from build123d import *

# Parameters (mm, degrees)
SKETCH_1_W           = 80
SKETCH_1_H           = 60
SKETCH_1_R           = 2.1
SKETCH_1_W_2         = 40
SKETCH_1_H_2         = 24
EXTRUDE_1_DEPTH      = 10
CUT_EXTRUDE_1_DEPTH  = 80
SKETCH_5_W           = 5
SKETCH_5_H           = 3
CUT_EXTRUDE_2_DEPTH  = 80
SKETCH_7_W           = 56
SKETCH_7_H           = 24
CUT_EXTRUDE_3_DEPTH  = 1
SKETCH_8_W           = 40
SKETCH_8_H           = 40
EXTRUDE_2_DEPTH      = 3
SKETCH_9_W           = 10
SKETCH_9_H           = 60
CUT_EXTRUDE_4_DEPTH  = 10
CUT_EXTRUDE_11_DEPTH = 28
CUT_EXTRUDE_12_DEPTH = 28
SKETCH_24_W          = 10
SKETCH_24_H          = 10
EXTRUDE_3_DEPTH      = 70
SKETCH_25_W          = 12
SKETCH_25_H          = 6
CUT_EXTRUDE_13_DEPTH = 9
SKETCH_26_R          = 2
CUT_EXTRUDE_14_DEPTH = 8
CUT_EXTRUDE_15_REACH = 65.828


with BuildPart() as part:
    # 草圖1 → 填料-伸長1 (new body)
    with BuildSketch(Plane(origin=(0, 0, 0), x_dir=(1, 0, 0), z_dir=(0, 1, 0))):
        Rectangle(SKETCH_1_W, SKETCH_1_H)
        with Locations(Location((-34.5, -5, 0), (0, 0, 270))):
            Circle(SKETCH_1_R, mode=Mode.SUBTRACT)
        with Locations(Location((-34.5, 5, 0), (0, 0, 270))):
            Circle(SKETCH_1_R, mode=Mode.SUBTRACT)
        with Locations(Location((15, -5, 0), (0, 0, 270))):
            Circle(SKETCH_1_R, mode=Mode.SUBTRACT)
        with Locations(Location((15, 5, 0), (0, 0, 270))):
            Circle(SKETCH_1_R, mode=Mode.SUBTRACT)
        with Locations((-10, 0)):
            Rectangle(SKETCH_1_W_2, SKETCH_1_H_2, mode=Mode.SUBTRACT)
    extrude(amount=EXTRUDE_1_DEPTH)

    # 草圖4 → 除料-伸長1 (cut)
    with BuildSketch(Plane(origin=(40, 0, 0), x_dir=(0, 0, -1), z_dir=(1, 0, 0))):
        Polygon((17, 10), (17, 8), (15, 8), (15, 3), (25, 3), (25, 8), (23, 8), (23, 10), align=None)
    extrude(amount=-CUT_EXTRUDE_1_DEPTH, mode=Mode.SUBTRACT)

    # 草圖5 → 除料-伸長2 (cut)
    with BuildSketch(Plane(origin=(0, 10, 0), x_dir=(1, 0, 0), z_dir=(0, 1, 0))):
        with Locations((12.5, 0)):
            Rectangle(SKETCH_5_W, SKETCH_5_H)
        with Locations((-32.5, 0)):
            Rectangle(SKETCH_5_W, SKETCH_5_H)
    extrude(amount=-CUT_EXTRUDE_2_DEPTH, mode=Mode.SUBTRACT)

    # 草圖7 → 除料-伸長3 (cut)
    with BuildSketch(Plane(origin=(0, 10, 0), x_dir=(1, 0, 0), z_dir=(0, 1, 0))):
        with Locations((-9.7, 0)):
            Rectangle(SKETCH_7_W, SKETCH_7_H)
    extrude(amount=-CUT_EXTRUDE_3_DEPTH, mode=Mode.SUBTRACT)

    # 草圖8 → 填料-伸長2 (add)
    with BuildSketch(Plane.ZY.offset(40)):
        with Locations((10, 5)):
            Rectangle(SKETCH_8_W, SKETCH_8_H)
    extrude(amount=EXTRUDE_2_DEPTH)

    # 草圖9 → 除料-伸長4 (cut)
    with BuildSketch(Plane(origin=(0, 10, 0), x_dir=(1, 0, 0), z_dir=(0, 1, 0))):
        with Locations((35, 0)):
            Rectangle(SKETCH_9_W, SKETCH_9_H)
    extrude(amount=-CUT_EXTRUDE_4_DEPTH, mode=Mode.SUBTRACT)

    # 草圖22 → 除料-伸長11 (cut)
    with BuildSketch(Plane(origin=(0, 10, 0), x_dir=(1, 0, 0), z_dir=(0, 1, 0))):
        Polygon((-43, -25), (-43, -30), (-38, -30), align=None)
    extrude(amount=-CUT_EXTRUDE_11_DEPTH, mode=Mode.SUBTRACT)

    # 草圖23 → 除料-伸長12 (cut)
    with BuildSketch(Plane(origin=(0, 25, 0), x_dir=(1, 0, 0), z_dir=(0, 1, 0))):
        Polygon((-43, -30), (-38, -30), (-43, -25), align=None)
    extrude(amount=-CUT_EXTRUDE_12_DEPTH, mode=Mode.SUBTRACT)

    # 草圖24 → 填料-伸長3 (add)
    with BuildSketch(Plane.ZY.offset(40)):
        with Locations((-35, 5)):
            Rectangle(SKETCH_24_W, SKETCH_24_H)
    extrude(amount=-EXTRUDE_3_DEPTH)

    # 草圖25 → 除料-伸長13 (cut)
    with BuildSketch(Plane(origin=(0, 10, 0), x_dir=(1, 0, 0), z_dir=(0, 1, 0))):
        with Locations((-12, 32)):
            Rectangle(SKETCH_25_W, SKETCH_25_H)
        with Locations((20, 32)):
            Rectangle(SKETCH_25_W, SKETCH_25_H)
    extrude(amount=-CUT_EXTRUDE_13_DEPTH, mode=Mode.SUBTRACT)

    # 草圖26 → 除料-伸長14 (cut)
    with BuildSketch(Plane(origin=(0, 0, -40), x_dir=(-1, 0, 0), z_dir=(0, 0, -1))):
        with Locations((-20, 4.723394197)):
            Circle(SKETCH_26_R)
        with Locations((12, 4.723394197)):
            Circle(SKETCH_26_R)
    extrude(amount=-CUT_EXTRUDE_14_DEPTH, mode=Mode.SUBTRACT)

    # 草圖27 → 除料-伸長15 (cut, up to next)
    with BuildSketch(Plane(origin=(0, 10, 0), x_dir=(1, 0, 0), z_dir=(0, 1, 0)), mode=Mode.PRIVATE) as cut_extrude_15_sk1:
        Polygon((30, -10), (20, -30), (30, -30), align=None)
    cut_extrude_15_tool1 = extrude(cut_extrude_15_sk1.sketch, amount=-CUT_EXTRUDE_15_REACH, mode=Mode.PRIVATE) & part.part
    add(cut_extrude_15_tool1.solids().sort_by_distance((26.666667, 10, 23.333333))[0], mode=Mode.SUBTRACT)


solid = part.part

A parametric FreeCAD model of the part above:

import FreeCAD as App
import Part
import Sketcher

V = App.Vector
Q = App.Units.Quantity


def add_polygon(sketch, points):
    """Adds a closed chain of lines whose ends are joined by coincident constraints."""
    first, n = sketch.GeometryCount, len(points)
    for a, b in zip(points, points[1:] + points[:1]):
        sketch.addGeometry(Part.LineSegment(App.Vector(*a, 0), App.Vector(*b, 0)), False)
    for i in range(n):
        sketch.addConstraint(Sketcher.Constraint("Coincident", first + i, 2, first + (i + 1) % n, 1))

doc = App.newDocument("Part")
body = doc.addObject("PartDesign::Body", "Body")

# Sketch on XZ plane
sketch1 = doc.addObject("Sketcher::SketchObject", "Sketch")
body.addObject(sketch1)
sketch1.AttachmentSupport = (doc.XZ_Plane, [""])
sketch1.MapMode = "FlatFace"
add_polygon(sketch1, [(-40, -30), (-40, 30), (40, 30), (40, -30)])  # lines 0-3
sketch1.addGeometry(Part.Circle(V(-34.5, 5, 0), V(0, 0, 1), 2.1), False)  # 4
sketch1.addGeometry(Part.Circle(V(15, 5, 0), V(0, 0, 1), 2.1), False)  # 5
sketch1.addGeometry(Part.Circle(V(-34.5, -5, 0), V(0, 0, 1), 2.1), False)  # 6
add_polygon(sketch1, [(10, 12), (-30, 12), (-30, -12), (10, -12)])  # lines 7-10
sketch1.addGeometry(Part.Circle(V(15, -5, 0), V(0, 0, 1), 2.1), False)  # 11
sketch1.addConstraint(Sketcher.Constraint("Vertical", 0))
sketch1.addConstraint(Sketcher.Constraint("Horizontal", 1))
sketch1.addConstraint(Sketcher.Constraint("Vertical", 2))
sketch1.addConstraint(Sketcher.Constraint("Horizontal", 3))
sketch1.addConstraint(Sketcher.Constraint("Horizontal", 7))
sketch1.addConstraint(Sketcher.Constraint("Vertical", 8))
sketch1.addConstraint(Sketcher.Constraint("Horizontal", 9))
sketch1.addConstraint(Sketcher.Constraint("Vertical", 10))
sketch1.addConstraint(Sketcher.Constraint("Equal", 4, 5))
sketch1.addConstraint(Sketcher.Constraint("Equal", 5, 6))
sketch1.addConstraint(Sketcher.Constraint("Equal", 6, 11))
sketch1.addConstraint(Sketcher.Constraint("Symmetric", 0, 2, 2, 2, -1, 1))
sketch1.addConstraint(Sketcher.Constraint("Symmetric", 4, 3, 6, 3, -1))
sketch1.addConstraint(Sketcher.Constraint("Symmetric", 5, 3, 11, 3, -1))
sketch1.addConstraint(Sketcher.Constraint("Horizontal", 4, 3, 5, 3))
sketch1.addConstraint(Sketcher.Constraint("Diameter", 4, Q("4.2 mm")))
sketch1.addConstraint(Sketcher.Constraint("DistanceX", 1, 1, 1, 2, Q("80 mm")))
sketch1.addConstraint(Sketcher.Constraint("DistanceX", 7, 2, 7, 1, Q("40 mm")))
sketch1.addConstraint(Sketcher.Constraint("DistanceY", 0, 1, 0, 2, Q("60 mm")))
sketch1.addConstraint(Sketcher.Constraint("DistanceY", 8, 2, 8, 1, Q("24 mm")))
sketch1.addConstraint(Sketcher.Constraint("DistanceY", -1, 1, 4, 3, Q("5 mm")))
sketch1.addConstraint(Sketcher.Constraint("DistanceX", -1, 1, 5, 3, Q("15 mm")))
sketch1.addConstraint(Sketcher.Constraint("DistanceX", 7, 2, -1, 1, Q("30 mm")))
sketch1.addConstraint(Sketcher.Constraint("DistanceY", -1, 1, 7, 2, Q("12 mm")))
sketch1.addConstraint(Sketcher.Constraint("DistanceX", 4, 3, -1, 1, Q("34.5 mm")))
pad1 = doc.addObject("PartDesign::Pad", "Pad")
body.addObject(pad1)
pad1.Profile = sketch1
pad1.Length = 10
pad1.Reversed = True

# Sketch on YZ plane
sketch2 = doc.addObject("Sketcher::SketchObject", "Sketch001")
body.addObject(sketch2)
sketch2.AttachmentSupport = (doc.YZ_Plane, [""])
sketch2.MapMode = "FlatFace"
sketch2.AttachmentOffset = App.Placement(V(0, 0, 40), App.Rotation())
add_polygon(sketch2, [(10, -17), (8, -17), (8, -15), (3, -15), (3, -25), (8, -25), (8, -23), (10, -23)])  # lines 0-7
sketch2.addConstraint(Sketcher.Constraint("Horizontal", 0))
sketch2.addConstraint(Sketcher.Constraint("Vertical", 1))
sketch2.addConstraint(Sketcher.Constraint("Horizontal", 2))
sketch2.addConstraint(Sketcher.Constraint("Vertical", 3))
sketch2.addConstraint(Sketcher.Constraint("Horizontal", 4))
sketch2.addConstraint(Sketcher.Constraint("Vertical", 5))
sketch2.addConstraint(Sketcher.Constraint("Horizontal", 6))
sketch2.addConstraint(Sketcher.Constraint("Vertical", 7))
sketch2.addConstraint(Sketcher.Constraint("Vertical", 1, 2, 4, 2))
sketch2.addConstraint(Sketcher.Constraint("Equal", 6, 1))
sketch2.addConstraint(Sketcher.Constraint("Equal", 1, 5))
sketch2.addConstraint(Sketcher.Constraint("DistanceX", 0, 2, 0, 1, Q("2 mm")))
sketch2.addConstraint(Sketcher.Constraint("DistanceX", 2, 2, 2, 1, Q("5 mm")))
sketch2.addConstraint(Sketcher.Constraint("DistanceY", 3, 2, 3, 1, Q("10 mm")))
sketch2.addConstraint(Sketcher.Constraint("DistanceX", -1, 1, 0, 2, Q("8 mm")))
sketch2.addConstraint(Sketcher.Constraint("DistanceY", 0, 2, -1, 1, Q("17 mm")))
pocket1 = doc.addObject("PartDesign::Pocket", "Pocket")
body.addObject(pocket1)
pocket1.Profile = sketch2
pocket1.Length = 80

# Sketch on XZ plane
sketch3 = doc.addObject("Sketcher::SketchObject", "Sketch002")
body.addObject(sketch3)
sketch3.AttachmentSupport = (doc.XZ_Plane, [""])
sketch3.MapMode = "FlatFace"
sketch3.AttachmentOffset = App.Placement(V(0, 0, -10), App.Rotation())
add_polygon(sketch3, [(10, -1.5), (10, 1.5), (15, 1.5), (15, -1.5)])  # lines 0-3
add_polygon(sketch3, [(-35, -1.5), (-35, 1.5), (-30, 1.5), (-30, -1.5)])  # lines 4-7
sketch3.addConstraint(Sketcher.Constraint("Vertical", 0))
sketch3.addConstraint(Sketcher.Constraint("Horizontal", 1))
sketch3.addConstraint(Sketcher.Constraint("Vertical", 2))
sketch3.addConstraint(Sketcher.Constraint("Horizontal", 3))
sketch3.addConstraint(Sketcher.Constraint("Vertical", 4))
sketch3.addConstraint(Sketcher.Constraint("Horizontal", 5))
sketch3.addConstraint(Sketcher.Constraint("Vertical", 6))
sketch3.addConstraint(Sketcher.Constraint("Horizontal", 7))
sketch3.addConstraint(Sketcher.Constraint("Horizontal", 1, 2, 4, 2))
sketch3.addConstraint(Sketcher.Constraint("Horizontal", 3, 2, 6, 2))
sketch3.addConstraint(Sketcher.Constraint("Equal", 3, 5))
sketch3.addConstraint(Sketcher.Constraint("DistanceX", 1, 1, 1, 2, Q("5 mm")))
sketch3.addConstraint(Sketcher.Constraint("DistanceY", 0, 1, 0, 2, Q("3 mm")))
sketch3.addConstraint(Sketcher.Constraint("DistanceX", -1, 1, 0, 2, Q("10 mm")))
sketch3.addConstraint(Sketcher.Constraint("DistanceX", 4, 2, -1, 1, Q("35 mm")))
sketch3.addConstraint(Sketcher.Constraint("DistanceY", -1, 1, 0, 2, Q("1.5 mm")))
pocket2 = doc.addObject("PartDesign::Pocket", "Pocket001")
body.addObject(pocket2)
pocket2.Profile = sketch3
pocket2.Length = 80
pocket2.Reversed = True

# Sketch on XZ plane
sketch4 = doc.addObject("Sketcher::SketchObject", "Sketch003")
body.addObject(sketch4)
sketch4.AttachmentSupport = (doc.XZ_Plane, [""])
sketch4.MapMode = "FlatFace"
sketch4.AttachmentOffset = App.Placement(V(0, 0, -10), App.Rotation())
add_polygon(sketch4, [(-38, -12), (-38, 12), (18, 12), (18, -12)])  # lines 0-3
sketch4.addConstraint(Sketcher.Constraint("Vertical", 0))
sketch4.addConstraint(Sketcher.Constraint("Horizontal", 1))
sketch4.addConstraint(Sketcher.Constraint("Vertical", 2))
sketch4.addConstraint(Sketcher.Constraint("Horizontal", 3))
sketch4.addConstraint(Sketcher.Constraint("DistanceX", 1, 1, 1, 2, Q("56 mm")))
sketch4.addConstraint(Sketcher.Constraint("DistanceY", 0, 1, 0, 2, Q("24 mm")))
sketch4.addConstraint(Sketcher.Constraint("DistanceY", -1, 1, 0, 2, Q("12 mm")))
sketch4.addConstraint(Sketcher.Constraint("DistanceX", 0, 2, -1, 1, Q("37.7 mm")))
pocket3 = doc.addObject("PartDesign::Pocket", "Pocket002")
body.addObject(pocket3)
pocket3.Profile = sketch4
pocket3.Length = 1
pocket3.Reversed = True

# Sketch on YZ plane
sketch5 = doc.addObject("Sketcher::SketchObject", "Sketch004")
body.addObject(sketch5)
sketch5.AttachmentSupport = (doc.YZ_Plane, [""])
sketch5.MapMode = "FlatFace"
sketch5.AttachmentOffset = App.Placement(V(0, 0, -40), App.Rotation())
add_polygon(sketch5, [(25, -10), (-15, -10), (-15, 30), (25, 30)])  # lines 0-3
sketch5.addConstraint(Sketcher.Constraint("Horizontal", 0))
sketch5.addConstraint(Sketcher.Constraint("Vertical", 1))
sketch5.addConstraint(Sketcher.Constraint("Horizontal", 2))
sketch5.addConstraint(Sketcher.Constraint("Vertical", 3))
sketch5.addConstraint(Sketcher.Constraint("Equal", 2, 1))
sketch5.addConstraint(Sketcher.Constraint("DistanceX", 0, 2, 0, 1, Q("40 mm")))
sketch5.addConstraint(Sketcher.Constraint("DistanceX", 0, 2, -1, 1, Q("15 mm")))
sketch5.addConstraint(Sketcher.Constraint("DistanceY", 0, 2, -1, 1, Q("10 mm")))
pad2 = doc.addObject("PartDesign::Pad", "Pad001")
body.addObject(pad2)
pad2.Profile = sketch5
pad2.Length = 3
pad2.Reversed = True

# Sketch on XZ plane
sketch6 = doc.addObject("Sketcher::SketchObject", "Sketch005")
body.addObject(sketch6)
sketch6.AttachmentSupport = (doc.XZ_Plane, [""])
sketch6.MapMode = "FlatFace"
sketch6.AttachmentOffset = App.Placement(V(0, 0, -10), App.Rotation())
add_polygon(sketch6, [(30, -30), (30, 30), (40, 30), (40, -30)])  # lines 0-3
sketch6.addConstraint(Sketcher.Constraint("Vertical", 0))
sketch6.addConstraint(Sketcher.Constraint("Horizontal", 1))
sketch6.addConstraint(Sketcher.Constraint("Vertical", 2))
sketch6.addConstraint(Sketcher.Constraint("Horizontal", 3))
sketch6.addConstraint(Sketcher.Constraint("DistanceX", 1, 1, 1, 2, Q("10 mm")))
sketch6.addConstraint(Sketcher.Constraint("DistanceY", 0, 1, 0, 2, Q("60 mm")))
sketch6.addConstraint(Sketcher.Constraint("DistanceX", -1, 1, 0, 2, Q("30 mm")))
sketch6.addConstraint(Sketcher.Constraint("DistanceY", -1, 1, 0, 2, Q("30 mm")))
pocket4 = doc.addObject("PartDesign::Pocket", "Pocket003")
body.addObject(pocket4)
pocket4.Profile = sketch6
pocket4.Length = 10
pocket4.Reversed = True

# Sketch on XZ plane
sketch7 = doc.addObject("Sketcher::SketchObject", "Sketch006")
body.addObject(sketch7)
sketch7.AttachmentSupport = (doc.XZ_Plane, [""])
sketch7.MapMode = "FlatFace"
sketch7.AttachmentOffset = App.Placement(V(0, 0, -10), App.Rotation())
add_polygon(sketch7, [(-43, 25), (-43, 30), (-38, 30)])  # lines 0-2
sketch7.addConstraint(Sketcher.Constraint("Vertical", 0))
sketch7.addConstraint(Sketcher.Constraint("Horizontal", 1))
sketch7.addConstraint(Sketcher.Constraint("Equal", 1, 0))
sketch7.addConstraint(Sketcher.Constraint("DistanceX", 1, 1, 1, 2, Q("5 mm")))
sketch7.addConstraint(Sketcher.Constraint("DistanceX", 0, 2, -1, 1, Q("43 mm")))
sketch7.addConstraint(Sketcher.Constraint("DistanceY", -1, 1, 0, 2, Q("30 mm")))
pocket5 = doc.addObject("PartDesign::Pocket", "Pocket004")
body.addObject(pocket5)
pocket5.Profile = sketch7
pocket5.Length = 28
pocket5.Reversed = True

# Sketch on XZ plane
sketch8 = doc.addObject("Sketcher::SketchObject", "Sketch007")
body.addObject(sketch8)
sketch8.AttachmentSupport = (doc.XZ_Plane, [""])
sketch8.MapMode = "FlatFace"
sketch8.AttachmentOffset = App.Placement(V(0, 0, -25), App.Rotation())
add_polygon(sketch8, [(-43, 30), (-38, 30), (-43, 25)])  # lines 0-2
sketch8.addConstraint(Sketcher.Constraint("Horizontal", 0))
sketch8.addConstraint(Sketcher.Constraint("Vertical", 2))
sketch8.addConstraint(Sketcher.Constraint("Equal", 0, 2))
sketch8.addConstraint(Sketcher.Constraint("DistanceX", 0, 1, 0, 2, Q("5 mm")))
sketch8.addConstraint(Sketcher.Constraint("DistanceX", 0, 2, -1, 1, Q("38 mm")))
sketch8.addConstraint(Sketcher.Constraint("DistanceY", -1, 1, 0, 2, Q("30 mm")))
pocket6 = doc.addObject("PartDesign::Pocket", "Pocket005")
body.addObject(pocket6)
pocket6.Profile = sketch8
pocket6.Length = 28
pocket6.Reversed = True

# Sketch on YZ plane
sketch9 = doc.addObject("Sketcher::SketchObject", "Sketch008")
body.addObject(sketch9)
sketch9.AttachmentSupport = (doc.YZ_Plane, [""])
sketch9.MapMode = "FlatFace"
sketch9.AttachmentOffset = App.Placement(V(0, 0, -40), App.Rotation())
add_polygon(sketch9, [(10, -40), (0, -40), (0, -30), (10, -30)])  # lines 0-3
sketch9.addConstraint(Sketcher.Constraint("Horizontal", 0))
sketch9.addConstraint(Sketcher.Constraint("Vertical", 1))
sketch9.addConstraint(Sketcher.Constraint("Horizontal", 2))
sketch9.addConstraint(Sketcher.Constraint("Vertical", 3))
sketch9.addConstraint(Sketcher.Constraint("PointOnObject", 0, 2, -2))
sketch9.addConstraint(Sketcher.Constraint("Equal", 2, 1))
sketch9.addConstraint(Sketcher.Constraint("DistanceX", 0, 2, 0, 1, Q("10 mm")))
sketch9.addConstraint(Sketcher.Constraint("DistanceY", 0, 2, -1, 1, Q("40 mm")))
pad3 = doc.addObject("PartDesign::Pad", "Pad002")
body.addObject(pad3)
pad3.Profile = sketch9
pad3.Length = 70

# Sketch on XZ plane
sketch10 = doc.addObject("Sketcher::SketchObject", "Sketch009")
body.addObject(sketch10)
sketch10.AttachmentSupport = (doc.XZ_Plane, [""])
sketch10.MapMode = "FlatFace"
sketch10.AttachmentOffset = App.Placement(V(0, 0, -10), App.Rotation())
add_polygon(sketch10, [(-18, -35), (-18, -29), (-6, -29), (-6, -35)])  # lines 0-3
add_polygon(sketch10, [(14, -35), (14, -29), (26, -29), (26, -35)])  # lines 4-7
sketch10.addConstraint(Sketcher.Constraint("Vertical", 0))
sketch10.addConstraint(Sketcher.Constraint("Horizontal", 1))
sketch10.addConstraint(Sketcher.Constraint("Vertical", 2))
sketch10.addConstraint(Sketcher.Constraint("Horizontal", 3))
sketch10.addConstraint(Sketcher.Constraint("Vertical", 4))
sketch10.addConstraint(Sketcher.Constraint("Horizontal", 5))
sketch10.addConstraint(Sketcher.Constraint("Vertical", 6))
sketch10.addConstraint(Sketcher.Constraint("Horizontal", 7))
sketch10.addConstraint(Sketcher.Constraint("Horizontal", 1, 2, 4, 2))
sketch10.addConstraint(Sketcher.Constraint("Horizontal", 3, 2, 6, 2))
sketch10.addConstraint(Sketcher.Constraint("Equal", 3, 5))
sketch10.addConstraint(Sketcher.Constraint("DistanceX", 1, 1, 1, 2, Q("12 mm")))
sketch10.addConstraint(Sketcher.Constraint("DistanceY", 0, 1, 0, 2, Q("6 mm")))
sketch10.addConstraint(Sketcher.Constraint("DistanceX", 0, 2, -1, 1, Q("18 mm")))
sketch10.addConstraint(Sketcher.Constraint("DistanceY", 0, 2, -1, 1, Q("29 mm")))
sketch10.addConstraint(Sketcher.Constraint("DistanceX", -1, 1, 4, 2, Q("14 mm")))
pocket7 = doc.addObject("PartDesign::Pocket", "Pocket006")
body.addObject(pocket7)
pocket7.Profile = sketch10
pocket7.Length = 9
pocket7.Reversed = True

# Sketch on XY plane
sketch11 = doc.addObject("Sketcher::SketchObject", "Sketch010")
body.addObject(sketch11)
sketch11.AttachmentSupport = (doc.XY_Plane, [""])
sketch11.MapMode = "FlatFace"
sketch11.AttachmentOffset = App.Placement(V(0, 0, -40), App.Rotation())
sketch11.addGeometry(Part.Circle(V(20, 4.7, 0), V(0, 0, 1), 2), False)
sketch11.addGeometry(Part.Circle(V(-12, 4.7, 0), V(0, 0, 1), 2), False)
sketch11.addConstraint(Sketcher.Constraint("Equal", 0, 1))
sketch11.addConstraint(Sketcher.Constraint("Horizontal", 0, 3, 1, 3))
sketch11.addConstraint(Sketcher.Constraint("Diameter", 0, Q("4 mm")))
sketch11.addConstraint(Sketcher.Constraint("DistanceX", -1, 1, 0, 3, Q("20 mm")))
sketch11.addConstraint(Sketcher.Constraint("DistanceX", 1, 3, -1, 1, Q("12 mm")))
sketch11.addConstraint(Sketcher.Constraint("DistanceY", -1, 1, 0, 3, Q("4.723394 mm")))
pocket8 = doc.addObject("PartDesign::Pocket", "Pocket007")
body.addObject(pocket8)
pocket8.Profile = sketch11
pocket8.Length = 8
pocket8.Reversed = True

# Sketch on XZ plane
sketch12 = doc.addObject("Sketcher::SketchObject", "Sketch011")
body.addObject(sketch12)
sketch12.AttachmentSupport = (doc.XZ_Plane, [""])
sketch12.MapMode = "FlatFace"
sketch12.AttachmentOffset = App.Placement(V(0, 0, -10), App.Rotation())
add_polygon(sketch12, [(30, 10), (20, 30), (30, 30)])  # lines 0-2
sketch12.addConstraint(Sketcher.Constraint("Horizontal", 1))
sketch12.addConstraint(Sketcher.Constraint("Vertical", 2))
sketch12.addConstraint(Sketcher.Constraint("DistanceX", 1, 1, 1, 2, Q("10 mm")))
sketch12.addConstraint(Sketcher.Constraint("DistanceY", 2, 2, 2, 1, Q("20 mm")))
sketch12.addConstraint(Sketcher.Constraint("DistanceX", -1, 1, 0, 2, Q("20 mm")))
sketch12.addConstraint(Sketcher.Constraint("DistanceY", -1, 1, 0, 2, Q("30 mm")))
pocket9 = doc.addObject("PartDesign::Pocket", "Pocket008")
body.addObject(pocket9)
pocket9.Profile = sketch12
pocket9.Type = "UpToFirst"
pocket9.Reversed = True

doc.recompute()
